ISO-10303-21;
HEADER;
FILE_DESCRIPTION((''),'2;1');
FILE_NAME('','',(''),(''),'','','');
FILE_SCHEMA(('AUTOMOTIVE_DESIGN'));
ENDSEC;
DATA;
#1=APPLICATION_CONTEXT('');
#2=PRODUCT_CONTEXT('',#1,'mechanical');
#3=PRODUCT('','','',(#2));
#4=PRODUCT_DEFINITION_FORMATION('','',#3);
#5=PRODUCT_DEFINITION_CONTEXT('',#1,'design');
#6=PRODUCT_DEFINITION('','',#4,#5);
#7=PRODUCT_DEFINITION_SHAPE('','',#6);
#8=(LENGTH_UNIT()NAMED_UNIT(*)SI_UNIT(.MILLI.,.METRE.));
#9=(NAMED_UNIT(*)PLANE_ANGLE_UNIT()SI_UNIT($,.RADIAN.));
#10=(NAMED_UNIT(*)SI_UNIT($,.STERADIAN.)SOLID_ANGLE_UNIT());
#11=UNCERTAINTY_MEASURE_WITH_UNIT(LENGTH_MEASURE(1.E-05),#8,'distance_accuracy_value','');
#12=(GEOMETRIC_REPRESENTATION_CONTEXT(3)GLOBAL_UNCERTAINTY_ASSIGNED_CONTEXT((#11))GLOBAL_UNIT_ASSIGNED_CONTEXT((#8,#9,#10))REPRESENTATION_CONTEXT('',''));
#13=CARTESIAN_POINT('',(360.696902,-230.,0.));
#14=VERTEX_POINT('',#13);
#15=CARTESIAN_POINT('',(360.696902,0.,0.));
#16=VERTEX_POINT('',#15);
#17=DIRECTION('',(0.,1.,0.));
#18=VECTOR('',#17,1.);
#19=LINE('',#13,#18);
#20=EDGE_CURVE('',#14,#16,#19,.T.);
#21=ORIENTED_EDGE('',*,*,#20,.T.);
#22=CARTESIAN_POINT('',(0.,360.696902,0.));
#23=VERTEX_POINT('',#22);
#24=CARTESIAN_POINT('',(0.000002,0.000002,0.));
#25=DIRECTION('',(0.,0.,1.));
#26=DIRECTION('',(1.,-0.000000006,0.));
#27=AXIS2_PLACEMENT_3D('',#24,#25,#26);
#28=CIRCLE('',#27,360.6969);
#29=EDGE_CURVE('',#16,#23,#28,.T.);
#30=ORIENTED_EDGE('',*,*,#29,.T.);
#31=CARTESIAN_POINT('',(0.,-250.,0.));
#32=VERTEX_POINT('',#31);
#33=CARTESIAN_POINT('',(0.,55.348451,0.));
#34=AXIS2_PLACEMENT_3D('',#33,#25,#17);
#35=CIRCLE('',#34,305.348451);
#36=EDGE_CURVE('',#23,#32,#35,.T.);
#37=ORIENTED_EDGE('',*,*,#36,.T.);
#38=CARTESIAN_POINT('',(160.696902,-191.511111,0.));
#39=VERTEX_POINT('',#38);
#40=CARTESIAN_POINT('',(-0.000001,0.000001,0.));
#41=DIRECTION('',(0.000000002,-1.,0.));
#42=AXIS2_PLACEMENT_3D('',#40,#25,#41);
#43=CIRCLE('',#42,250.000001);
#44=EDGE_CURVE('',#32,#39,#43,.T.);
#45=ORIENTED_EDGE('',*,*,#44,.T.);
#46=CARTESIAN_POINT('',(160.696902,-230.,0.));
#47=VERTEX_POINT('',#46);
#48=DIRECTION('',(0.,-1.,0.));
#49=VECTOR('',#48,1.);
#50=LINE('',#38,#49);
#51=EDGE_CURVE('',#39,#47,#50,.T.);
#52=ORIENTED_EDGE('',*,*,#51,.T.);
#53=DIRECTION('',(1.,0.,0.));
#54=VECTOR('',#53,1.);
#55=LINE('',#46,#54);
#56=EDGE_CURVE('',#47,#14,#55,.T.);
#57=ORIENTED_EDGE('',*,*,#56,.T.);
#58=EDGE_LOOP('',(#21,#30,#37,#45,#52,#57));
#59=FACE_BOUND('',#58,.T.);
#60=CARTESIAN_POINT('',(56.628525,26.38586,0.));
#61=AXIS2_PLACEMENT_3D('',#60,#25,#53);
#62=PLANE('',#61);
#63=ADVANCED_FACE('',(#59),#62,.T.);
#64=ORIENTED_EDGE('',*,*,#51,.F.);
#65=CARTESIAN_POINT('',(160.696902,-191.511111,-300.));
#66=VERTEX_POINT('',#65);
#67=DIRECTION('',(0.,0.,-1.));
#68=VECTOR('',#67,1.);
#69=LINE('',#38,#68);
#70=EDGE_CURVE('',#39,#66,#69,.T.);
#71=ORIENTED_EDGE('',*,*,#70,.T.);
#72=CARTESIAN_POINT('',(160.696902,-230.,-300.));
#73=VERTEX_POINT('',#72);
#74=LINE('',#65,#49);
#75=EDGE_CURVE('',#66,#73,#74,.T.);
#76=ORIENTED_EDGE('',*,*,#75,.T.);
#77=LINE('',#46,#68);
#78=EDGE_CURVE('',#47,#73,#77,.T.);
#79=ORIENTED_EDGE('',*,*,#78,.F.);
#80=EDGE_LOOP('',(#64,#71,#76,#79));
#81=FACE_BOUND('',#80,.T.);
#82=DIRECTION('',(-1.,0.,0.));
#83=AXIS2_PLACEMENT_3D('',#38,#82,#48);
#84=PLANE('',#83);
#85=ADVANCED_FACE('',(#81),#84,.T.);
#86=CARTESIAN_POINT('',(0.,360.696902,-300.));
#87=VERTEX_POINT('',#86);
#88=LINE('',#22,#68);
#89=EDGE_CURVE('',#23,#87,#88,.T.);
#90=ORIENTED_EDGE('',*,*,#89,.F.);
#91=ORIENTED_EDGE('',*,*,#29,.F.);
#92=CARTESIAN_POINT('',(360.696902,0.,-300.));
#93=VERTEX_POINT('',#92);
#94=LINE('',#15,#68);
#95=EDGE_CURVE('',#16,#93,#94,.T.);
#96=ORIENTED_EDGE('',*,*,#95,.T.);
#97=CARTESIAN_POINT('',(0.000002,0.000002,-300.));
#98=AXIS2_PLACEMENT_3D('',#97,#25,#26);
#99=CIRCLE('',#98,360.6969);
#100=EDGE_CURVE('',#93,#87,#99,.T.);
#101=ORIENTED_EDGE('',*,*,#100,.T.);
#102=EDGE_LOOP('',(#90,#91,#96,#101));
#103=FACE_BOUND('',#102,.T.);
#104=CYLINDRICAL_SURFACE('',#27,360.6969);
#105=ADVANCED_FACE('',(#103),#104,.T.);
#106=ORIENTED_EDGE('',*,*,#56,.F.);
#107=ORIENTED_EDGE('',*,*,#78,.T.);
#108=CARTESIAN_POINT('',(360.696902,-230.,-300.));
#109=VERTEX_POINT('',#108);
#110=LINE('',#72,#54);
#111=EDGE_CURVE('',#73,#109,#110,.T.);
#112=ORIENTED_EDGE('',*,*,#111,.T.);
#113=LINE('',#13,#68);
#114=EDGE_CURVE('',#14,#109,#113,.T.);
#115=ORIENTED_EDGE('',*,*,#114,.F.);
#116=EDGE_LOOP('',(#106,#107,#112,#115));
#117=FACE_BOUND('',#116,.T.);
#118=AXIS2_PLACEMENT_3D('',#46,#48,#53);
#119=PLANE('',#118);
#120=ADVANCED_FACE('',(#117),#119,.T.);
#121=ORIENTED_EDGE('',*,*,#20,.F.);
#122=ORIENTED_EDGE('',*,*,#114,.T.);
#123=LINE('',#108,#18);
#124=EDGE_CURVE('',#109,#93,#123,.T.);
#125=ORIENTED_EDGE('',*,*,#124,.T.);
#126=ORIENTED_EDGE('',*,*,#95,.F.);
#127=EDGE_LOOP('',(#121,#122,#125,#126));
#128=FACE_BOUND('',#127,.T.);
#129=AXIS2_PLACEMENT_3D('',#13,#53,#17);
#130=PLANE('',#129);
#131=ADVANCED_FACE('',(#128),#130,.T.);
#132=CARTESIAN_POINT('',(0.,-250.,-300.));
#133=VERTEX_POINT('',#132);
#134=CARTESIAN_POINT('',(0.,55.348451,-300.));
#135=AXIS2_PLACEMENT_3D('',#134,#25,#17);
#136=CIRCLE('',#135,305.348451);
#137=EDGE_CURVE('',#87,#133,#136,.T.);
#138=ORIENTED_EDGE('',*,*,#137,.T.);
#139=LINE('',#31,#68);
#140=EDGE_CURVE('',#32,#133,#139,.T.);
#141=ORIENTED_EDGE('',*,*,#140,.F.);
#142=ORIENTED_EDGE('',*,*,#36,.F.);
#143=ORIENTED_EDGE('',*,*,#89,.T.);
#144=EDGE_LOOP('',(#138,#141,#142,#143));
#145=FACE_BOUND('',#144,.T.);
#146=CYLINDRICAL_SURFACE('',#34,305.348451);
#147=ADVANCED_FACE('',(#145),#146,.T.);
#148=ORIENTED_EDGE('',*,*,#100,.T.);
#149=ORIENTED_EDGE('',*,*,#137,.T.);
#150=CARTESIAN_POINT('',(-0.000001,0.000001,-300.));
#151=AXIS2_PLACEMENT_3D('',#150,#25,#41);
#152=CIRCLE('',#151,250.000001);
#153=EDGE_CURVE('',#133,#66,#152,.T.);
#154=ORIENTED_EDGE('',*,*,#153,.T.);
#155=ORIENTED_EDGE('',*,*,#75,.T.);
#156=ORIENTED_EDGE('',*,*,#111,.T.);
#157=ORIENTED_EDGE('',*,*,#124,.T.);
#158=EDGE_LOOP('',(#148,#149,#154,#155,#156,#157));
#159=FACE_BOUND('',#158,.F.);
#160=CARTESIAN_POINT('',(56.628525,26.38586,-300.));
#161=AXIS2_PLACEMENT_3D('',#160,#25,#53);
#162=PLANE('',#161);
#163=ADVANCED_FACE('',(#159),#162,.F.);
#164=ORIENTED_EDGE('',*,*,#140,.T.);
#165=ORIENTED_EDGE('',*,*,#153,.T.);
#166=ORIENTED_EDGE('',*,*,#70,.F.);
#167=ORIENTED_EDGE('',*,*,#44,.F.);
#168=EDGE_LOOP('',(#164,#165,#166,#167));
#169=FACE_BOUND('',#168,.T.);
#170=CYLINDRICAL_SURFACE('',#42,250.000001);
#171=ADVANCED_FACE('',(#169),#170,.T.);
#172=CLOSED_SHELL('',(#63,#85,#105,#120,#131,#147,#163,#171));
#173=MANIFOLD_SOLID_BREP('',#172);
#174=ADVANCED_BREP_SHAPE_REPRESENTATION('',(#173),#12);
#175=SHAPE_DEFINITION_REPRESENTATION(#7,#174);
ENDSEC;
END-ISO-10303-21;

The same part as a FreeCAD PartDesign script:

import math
import FreeCAD as App
import Part
import Sketcher
from FreeCAD import Vector
Q = App.Units.Quantity

doc = App.newDocument("Part")
body = doc.addObject("PartDesign::Body", "Body")

# Sketch on XY plane
sketch1 = body.newObject("Sketcher::SketchObject", "Sketch")
sketch1.AttachmentSupport = (doc.getObject("XY_Plane"), [""])
sketch1.MapMode = "FlatFace"
sketch1.addGeometry(Part.ArcOfCircle(Part.Circle(Vector(0, 55, 0), Vector(0, 0, 1), 305), math.radians(90), math.radians(270)), False)
sketch1.addGeometry(Part.ArcOfCircle(Part.Circle(Vector(0, 0, 0), Vector(0, 0, 1), 250), math.radians(-90), math.radians(-50)), False)
sketch1.addGeometry(Part.LineSegment(Vector(161, -192, 0), Vector(161, -230, 0)), False)
sketch1.addGeometry(Part.LineSegment(Vector(161, -230, 0), Vector(361, -230, 0)), False)
sketch1.addGeometry(Part.LineSegment(Vector(361, -230, 0), Vector(361, 0, 0)), False)
sketch1.addGeometry(Part.ArcOfCircle(Part.Circle(Vector(0, 0, 0), Vector(0, 0, 1), 361), math.radians(0), math.radians(90)), False)
sketch1.addConstraint(Sketcher.Constraint("Tangent", 0, 2, 1, 1))
sketch1.addConstraint(Sketcher.Constraint("Coincident", 1, 2, 2, 1))
sketch1.addConstraint(Sketcher.Constraint("Coincident", 2, 2, 3, 1))
sketch1.addConstraint(Sketcher.Constraint("Coincident", 3, 2, 4, 1))
sketch1.addConstraint(Sketcher.Constraint("Tangent", 4, 2, 5, 1))
sketch1.addConstraint(Sketcher.Constraint("Tangent", 5, 2, 0, 1))
sketch1.addConstraint(Sketcher.Constraint("Vertical", 2))
sketch1.addConstraint(Sketcher.Constraint("Horizontal", 3))
sketch1.addConstraint(Sketcher.Constraint("Vertical", 4))
sketch1.addConstraint(Sketcher.Constraint("Coincident", 1, 3, -1, 1))
sketch1.addConstraint(Sketcher.Constraint("Coincident", 5, 3, -1, 1))
sketch1.addConstraint(Sketcher.Constraint("PointOnObject", 0, 3, -2))
sketch1.addConstraint(Sketcher.Constraint("Radius", 1, Q("250.000001 mm")))
sketch1.addConstraint(Sketcher.Constraint("DistanceX", 3, 1, 3, 2, Q("200 mm")))
sketch1.addConstraint(Sketcher.Constraint("DistanceY", 4, 1, 4, 2, Q("230 mm")))
sketch1.addConstraint(Sketcher.Constraint("Radius", 5, Q("360.6969 mm")))
pad1 = body.newObject("PartDesign::Pad", "Pad")
pad1.Profile = sketch1
pad1.Length = 300
pad1.Reversed = True

doc.recompute()
